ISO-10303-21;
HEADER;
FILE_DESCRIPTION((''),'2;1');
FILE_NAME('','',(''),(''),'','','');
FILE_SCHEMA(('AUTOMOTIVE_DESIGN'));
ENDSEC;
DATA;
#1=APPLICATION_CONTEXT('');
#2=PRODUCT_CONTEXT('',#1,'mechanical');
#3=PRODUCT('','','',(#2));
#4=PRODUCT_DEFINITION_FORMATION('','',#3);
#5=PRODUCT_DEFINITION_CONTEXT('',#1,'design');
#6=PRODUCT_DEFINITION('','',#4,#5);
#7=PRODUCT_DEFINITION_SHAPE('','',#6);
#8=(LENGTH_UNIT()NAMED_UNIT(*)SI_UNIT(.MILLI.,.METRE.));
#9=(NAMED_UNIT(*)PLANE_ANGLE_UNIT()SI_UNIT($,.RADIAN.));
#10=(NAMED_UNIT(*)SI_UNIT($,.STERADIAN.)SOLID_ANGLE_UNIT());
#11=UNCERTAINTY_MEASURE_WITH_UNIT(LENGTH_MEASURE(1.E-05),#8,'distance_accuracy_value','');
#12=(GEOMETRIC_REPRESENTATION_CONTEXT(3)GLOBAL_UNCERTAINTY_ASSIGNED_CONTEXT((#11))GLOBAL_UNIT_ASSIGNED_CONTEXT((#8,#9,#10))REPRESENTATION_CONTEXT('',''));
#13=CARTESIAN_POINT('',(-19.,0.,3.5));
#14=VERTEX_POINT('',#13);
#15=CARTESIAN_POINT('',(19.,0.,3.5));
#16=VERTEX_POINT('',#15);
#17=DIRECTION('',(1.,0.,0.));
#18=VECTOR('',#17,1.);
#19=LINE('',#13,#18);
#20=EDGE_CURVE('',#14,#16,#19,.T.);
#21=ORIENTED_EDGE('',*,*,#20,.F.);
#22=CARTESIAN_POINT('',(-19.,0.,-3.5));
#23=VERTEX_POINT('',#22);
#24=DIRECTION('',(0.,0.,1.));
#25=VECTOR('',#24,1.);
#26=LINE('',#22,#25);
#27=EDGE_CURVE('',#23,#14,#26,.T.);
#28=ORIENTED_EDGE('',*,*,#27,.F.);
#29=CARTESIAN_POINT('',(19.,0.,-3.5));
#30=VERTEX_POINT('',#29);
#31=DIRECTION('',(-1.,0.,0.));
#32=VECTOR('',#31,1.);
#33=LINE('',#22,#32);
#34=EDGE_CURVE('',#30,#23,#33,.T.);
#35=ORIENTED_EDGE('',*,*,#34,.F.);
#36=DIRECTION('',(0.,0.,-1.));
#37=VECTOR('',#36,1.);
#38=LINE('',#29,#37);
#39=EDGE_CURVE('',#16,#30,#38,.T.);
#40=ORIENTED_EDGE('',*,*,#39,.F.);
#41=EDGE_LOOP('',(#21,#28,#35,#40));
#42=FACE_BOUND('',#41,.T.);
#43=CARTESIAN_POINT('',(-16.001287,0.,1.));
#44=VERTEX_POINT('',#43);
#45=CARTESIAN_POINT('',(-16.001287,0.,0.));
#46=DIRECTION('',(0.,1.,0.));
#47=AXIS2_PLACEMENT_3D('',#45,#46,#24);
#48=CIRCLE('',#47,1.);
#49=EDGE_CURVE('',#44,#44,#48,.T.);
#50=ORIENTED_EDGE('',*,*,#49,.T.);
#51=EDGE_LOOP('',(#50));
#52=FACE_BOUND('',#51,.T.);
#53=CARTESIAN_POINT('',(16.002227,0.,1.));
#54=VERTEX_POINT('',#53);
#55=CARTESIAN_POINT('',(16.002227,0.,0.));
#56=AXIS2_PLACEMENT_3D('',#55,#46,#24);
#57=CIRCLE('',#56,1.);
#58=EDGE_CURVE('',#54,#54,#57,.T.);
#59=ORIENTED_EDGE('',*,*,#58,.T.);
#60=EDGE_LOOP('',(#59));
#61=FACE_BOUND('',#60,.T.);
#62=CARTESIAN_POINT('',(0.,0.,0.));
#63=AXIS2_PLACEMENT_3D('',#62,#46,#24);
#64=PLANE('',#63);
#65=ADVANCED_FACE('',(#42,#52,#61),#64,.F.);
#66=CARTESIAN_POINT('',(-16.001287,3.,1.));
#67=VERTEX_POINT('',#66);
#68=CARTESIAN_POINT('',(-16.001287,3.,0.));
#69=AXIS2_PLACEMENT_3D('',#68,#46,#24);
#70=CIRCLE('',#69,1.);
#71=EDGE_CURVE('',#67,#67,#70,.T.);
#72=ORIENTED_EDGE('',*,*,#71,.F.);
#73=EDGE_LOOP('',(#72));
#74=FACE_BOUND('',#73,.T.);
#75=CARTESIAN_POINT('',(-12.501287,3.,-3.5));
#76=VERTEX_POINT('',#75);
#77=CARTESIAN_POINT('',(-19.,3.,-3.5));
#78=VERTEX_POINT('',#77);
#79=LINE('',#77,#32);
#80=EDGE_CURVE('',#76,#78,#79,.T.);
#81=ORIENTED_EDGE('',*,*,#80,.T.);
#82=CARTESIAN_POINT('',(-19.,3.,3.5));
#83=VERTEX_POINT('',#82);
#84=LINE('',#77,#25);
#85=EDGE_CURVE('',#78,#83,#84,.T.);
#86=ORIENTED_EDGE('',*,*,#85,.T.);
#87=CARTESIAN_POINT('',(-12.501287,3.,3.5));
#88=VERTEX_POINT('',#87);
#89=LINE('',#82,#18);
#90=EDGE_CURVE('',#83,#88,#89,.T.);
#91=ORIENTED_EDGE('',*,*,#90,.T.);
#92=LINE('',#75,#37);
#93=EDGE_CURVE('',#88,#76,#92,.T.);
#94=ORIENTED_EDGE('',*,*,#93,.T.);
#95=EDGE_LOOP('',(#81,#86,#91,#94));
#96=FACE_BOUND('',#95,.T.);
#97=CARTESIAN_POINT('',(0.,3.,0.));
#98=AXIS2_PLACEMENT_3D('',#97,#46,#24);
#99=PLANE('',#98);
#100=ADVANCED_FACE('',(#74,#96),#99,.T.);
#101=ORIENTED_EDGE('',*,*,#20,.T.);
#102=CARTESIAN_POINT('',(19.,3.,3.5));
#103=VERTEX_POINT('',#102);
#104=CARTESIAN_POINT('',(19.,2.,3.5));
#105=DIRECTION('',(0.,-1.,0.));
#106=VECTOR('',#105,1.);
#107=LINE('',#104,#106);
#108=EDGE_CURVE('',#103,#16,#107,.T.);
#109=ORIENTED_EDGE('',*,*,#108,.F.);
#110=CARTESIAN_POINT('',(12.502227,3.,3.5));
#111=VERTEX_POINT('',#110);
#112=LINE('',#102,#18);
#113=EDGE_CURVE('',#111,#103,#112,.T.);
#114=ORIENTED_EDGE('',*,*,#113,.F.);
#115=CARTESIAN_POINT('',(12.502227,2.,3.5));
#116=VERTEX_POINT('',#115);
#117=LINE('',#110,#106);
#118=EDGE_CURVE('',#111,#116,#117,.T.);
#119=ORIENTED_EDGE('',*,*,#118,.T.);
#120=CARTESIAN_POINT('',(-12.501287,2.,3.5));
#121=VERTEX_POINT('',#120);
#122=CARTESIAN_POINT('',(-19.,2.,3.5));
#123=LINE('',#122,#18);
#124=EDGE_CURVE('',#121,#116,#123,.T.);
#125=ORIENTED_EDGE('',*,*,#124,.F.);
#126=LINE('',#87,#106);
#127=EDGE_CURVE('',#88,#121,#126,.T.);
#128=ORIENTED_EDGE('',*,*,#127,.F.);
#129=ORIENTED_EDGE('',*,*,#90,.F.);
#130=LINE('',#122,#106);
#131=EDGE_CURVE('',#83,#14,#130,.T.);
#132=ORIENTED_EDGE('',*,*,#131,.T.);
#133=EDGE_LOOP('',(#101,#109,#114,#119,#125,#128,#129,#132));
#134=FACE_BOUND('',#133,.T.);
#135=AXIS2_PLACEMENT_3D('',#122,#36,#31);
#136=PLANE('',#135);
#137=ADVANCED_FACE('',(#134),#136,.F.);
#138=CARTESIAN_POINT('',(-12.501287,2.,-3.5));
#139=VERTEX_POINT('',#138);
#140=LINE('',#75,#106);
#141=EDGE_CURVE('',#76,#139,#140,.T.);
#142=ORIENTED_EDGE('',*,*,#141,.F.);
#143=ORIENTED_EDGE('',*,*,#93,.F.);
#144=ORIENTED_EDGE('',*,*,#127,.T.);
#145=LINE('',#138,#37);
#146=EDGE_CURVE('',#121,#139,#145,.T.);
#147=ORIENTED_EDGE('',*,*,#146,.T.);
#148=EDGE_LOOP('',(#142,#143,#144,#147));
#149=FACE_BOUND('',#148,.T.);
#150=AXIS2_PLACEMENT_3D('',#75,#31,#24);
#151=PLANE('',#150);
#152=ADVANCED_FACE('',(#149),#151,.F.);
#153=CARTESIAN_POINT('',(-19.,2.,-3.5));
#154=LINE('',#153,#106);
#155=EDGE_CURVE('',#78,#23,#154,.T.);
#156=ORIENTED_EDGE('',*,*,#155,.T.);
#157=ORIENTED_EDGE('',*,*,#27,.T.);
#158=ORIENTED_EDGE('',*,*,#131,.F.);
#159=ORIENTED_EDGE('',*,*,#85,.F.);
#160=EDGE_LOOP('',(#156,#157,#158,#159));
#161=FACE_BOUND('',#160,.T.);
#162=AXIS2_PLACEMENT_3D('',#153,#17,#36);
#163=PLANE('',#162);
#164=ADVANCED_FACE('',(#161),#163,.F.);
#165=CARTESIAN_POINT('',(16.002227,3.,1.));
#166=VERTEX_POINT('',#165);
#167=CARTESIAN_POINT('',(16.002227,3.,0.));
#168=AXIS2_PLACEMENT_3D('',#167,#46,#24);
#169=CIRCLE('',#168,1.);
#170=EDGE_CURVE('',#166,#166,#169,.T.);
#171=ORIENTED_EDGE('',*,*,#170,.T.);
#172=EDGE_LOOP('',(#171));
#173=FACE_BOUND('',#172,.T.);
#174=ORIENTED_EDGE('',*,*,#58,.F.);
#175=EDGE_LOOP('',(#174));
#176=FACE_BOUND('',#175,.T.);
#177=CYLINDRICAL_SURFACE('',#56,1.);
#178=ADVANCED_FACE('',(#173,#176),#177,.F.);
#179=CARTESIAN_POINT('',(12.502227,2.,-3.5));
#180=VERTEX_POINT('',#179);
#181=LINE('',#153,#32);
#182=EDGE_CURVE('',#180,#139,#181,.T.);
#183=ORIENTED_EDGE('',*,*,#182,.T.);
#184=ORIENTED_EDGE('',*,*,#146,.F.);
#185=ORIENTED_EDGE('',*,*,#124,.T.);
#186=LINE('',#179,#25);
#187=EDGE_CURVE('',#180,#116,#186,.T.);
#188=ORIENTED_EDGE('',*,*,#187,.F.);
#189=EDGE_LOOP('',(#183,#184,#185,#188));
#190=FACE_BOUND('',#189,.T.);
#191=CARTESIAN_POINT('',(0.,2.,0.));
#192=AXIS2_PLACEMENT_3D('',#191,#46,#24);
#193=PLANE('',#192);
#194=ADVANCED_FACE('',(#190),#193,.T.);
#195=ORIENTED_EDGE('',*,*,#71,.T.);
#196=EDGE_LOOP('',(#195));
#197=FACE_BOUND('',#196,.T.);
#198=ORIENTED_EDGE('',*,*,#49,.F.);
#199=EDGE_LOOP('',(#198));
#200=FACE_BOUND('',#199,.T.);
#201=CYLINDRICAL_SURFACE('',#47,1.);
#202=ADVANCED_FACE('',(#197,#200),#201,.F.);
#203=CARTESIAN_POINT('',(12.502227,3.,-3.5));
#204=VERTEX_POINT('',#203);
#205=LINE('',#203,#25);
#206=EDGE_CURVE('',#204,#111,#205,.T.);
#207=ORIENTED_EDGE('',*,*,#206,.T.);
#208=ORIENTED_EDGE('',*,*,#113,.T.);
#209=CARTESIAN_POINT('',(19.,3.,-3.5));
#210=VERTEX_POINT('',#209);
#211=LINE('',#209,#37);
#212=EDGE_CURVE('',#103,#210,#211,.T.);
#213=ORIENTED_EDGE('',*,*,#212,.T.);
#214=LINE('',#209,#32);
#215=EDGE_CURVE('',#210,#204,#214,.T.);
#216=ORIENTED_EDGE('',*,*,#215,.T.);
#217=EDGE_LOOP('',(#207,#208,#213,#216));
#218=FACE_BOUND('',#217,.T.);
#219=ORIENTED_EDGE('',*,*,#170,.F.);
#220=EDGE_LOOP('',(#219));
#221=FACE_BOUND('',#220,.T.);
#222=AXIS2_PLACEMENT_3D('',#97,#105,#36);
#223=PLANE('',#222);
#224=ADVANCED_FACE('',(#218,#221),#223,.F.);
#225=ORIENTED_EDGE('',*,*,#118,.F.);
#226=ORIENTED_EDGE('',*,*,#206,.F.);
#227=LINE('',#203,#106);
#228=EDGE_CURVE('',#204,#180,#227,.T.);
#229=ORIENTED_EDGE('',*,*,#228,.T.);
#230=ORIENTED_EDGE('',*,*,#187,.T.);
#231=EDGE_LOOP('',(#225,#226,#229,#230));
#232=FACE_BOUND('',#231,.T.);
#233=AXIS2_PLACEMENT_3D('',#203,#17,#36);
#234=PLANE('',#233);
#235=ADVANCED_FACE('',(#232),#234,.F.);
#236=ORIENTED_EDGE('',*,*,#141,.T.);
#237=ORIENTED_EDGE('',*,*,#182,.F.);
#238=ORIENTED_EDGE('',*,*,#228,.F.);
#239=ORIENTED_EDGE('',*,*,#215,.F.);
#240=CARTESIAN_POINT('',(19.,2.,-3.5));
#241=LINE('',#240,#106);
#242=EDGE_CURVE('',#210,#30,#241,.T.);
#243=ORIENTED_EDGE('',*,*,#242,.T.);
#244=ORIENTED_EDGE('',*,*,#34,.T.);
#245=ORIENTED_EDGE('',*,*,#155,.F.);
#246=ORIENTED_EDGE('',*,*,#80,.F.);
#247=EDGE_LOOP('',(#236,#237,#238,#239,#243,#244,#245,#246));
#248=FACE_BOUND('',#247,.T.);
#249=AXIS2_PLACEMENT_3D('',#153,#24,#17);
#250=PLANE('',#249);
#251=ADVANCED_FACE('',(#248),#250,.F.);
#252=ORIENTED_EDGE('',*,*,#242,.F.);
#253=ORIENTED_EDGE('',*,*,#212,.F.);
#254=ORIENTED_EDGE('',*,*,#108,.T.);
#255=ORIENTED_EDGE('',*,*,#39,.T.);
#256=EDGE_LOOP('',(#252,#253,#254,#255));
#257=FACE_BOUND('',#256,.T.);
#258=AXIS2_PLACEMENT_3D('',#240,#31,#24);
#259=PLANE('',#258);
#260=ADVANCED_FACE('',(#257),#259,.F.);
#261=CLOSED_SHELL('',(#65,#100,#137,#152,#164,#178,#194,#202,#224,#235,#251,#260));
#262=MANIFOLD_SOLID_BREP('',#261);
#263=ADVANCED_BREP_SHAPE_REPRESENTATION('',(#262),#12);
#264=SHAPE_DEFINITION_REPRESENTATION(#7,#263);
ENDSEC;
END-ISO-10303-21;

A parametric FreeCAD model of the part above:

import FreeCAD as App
import Part
import Sketcher
Q = App.Units.Quantity


def add_polygon(sketch, points):
    """Adds a closed chain of lines whose ends are joined by coincident constraints."""
    first, n = sketch.GeometryCount, len(points)
    for a, b in zip(points, points[1:] + points[:1]):
        sketch.addGeometry(Part.LineSegment(App.Vector(*a, 0), App.Vector(*b, 0)), False)
    for i in range(n):
        sketch.addConstraint(Sketcher.Constraint("Coincident", first + i, 2, first + (i + 1) % n, 1))

doc = App.newDocument("Part")
params = doc.addObject("Spreadsheet::Sheet", "Params")
for row, (alias, value) in enumerate([
    ("sketch1_width", "38 mm"),
    ("sketch1_height", "7 mm"),
    ("pad1_length", "2 mm"),
    ("sketch2_height", "7 mm"),
    ("pad2_length", "1 mm"),
    ("sketch3_diameter", "2 mm"),
    ("pocket1_length", "3 mm"),
], start=1):
    params.set(f"A{row}", alias)
    params.set(f"B{row}", "=" + value)
    params.setAlias(f"B{row}", alias)

body = doc.addObject("PartDesign::Body", "Body")

# Sketch on XZ plane
sketch1 = body.newObject("Sketcher::SketchObject", "Sketch")
sketch1.AttachmentSupport = (doc.getObject("XZ_Plane"), [""])
sketch1.MapMode = "FlatFace"
add_polygon(sketch1, [(-19, -3.5), (-19, 3.5), (19, 3.5), (19, -3.5)])  # lines 0-3
sketch1.addConstraint([
    Sketcher.Constraint("Vertical", 0),
    Sketcher.Constraint("Horizontal", 1),
    Sketcher.Constraint("Vertical", 2),
    Sketcher.Constraint("Horizontal", 3),
    Sketcher.Constraint("Symmetric", 0, 2, 2, 2, -1, 1),
    Sketcher.Constraint("DistanceX", 1, 1, 1, 2, Q("38 mm")),
    Sketcher.Constraint("DistanceY", 0, 1, 0, 2, Q("7 mm")),
])
sketch1.setExpression("Constraints[9]", "Params.sketch1_width")
sketch1.setExpression("Constraints[10]", "Params.sketch1_height")
pad1 = body.newObject("PartDesign::Pad", "Pad")
pad1.Profile = sketch1
pad1.setExpression("Length", "Params.pad1_length")
pad1.Reversed = True

# Sketch on XZ plane
sketch2 = body.newObject("Sketcher::SketchObject", "Sketch001")
sketch2.AttachmentSupport = (doc.getObject("XZ_Plane"), [""])
sketch2.MapMode = "FlatFace"
sketch2.AttachmentOffset = App.Placement(App.Vector(0, 0, -2), App.Rotation())
add_polygon(sketch2, [(-19, -3.5), (-19, 3.5), (-12.501287, 3.5), (-12.501287, -3.5)])  # lines 0-3
add_polygon(sketch2, [(12.502227, -3.5), (12.502227, 3.5), (19, 3.5), (19, -3.5)])  # lines 4-7
sketch2.addConstraint([
    Sketcher.Constraint("Vertical", 0),
    Sketcher.Constraint("Horizontal", 1),
    Sketcher.Constraint("Vertical", 2),
    Sketcher.Constraint("Horizontal", 3),
    Sketcher.Constraint("Vertical", 4),
    Sketcher.Constraint("Horizontal", 5),
    Sketcher.Constraint("Vertical", 6),
    Sketcher.Constraint("Horizontal", 7),
    Sketcher.Constraint("Symmetric", 3, 2, 5, 2, -1, 1),
    Sketcher.Constraint("Horizontal", 1, 2, 4, 2),
    Sketcher.Constraint("Horizontal", 3, 2, 6, 2),
    Sketcher.Constraint("DistanceY", 0, 1, 0, 2, Q("7 mm")),
    Sketcher.Constraint("DistanceX", 0, 2, -1, 1, Q("19 mm")),
    Sketcher.Constraint("DistanceX", 1, 1, 1, 2, Q("6.498713 mm")),
    Sketcher.Constraint("DistanceX", 5, 1, 5, 2, Q("6.497773 mm")),
])
sketch2.setExpression("Constraints[19]", "Params.sketch2_height")
pad2 = body.newObject("PartDesign::Pad", "Pad001")
pad2.Profile = sketch2
pad2.setExpression("Length", "Params.pad2_length")
pad2.Reversed = True

# Sketch on XZ plane
sketch3 = body.newObject("Sketcher::SketchObject", "Sketch002")
sketch3.AttachmentSupport = (doc.getObject("XZ_Plane"), [""])
sketch3.MapMode = "FlatFace"
sketch3.AttachmentOffset = App.Placement(App.Vector(0, 0, -3), App.Rotation())
sketch3.addGeometry([
    Part.Circle(App.Vector(-16.001287, 0, 0), App.Vector(0, 0, 1), 1),
    Part.Circle(App.Vector(16.002227, 0, 0), App.Vector(0, 0, 1), 1),
], False)
sketch3.addConstraint([
    Sketcher.Constraint("Equal", 0, 1),
    Sketcher.Constraint("PointOnObject", 0, 3, -1),
    Sketcher.Constraint("PointOnObject", 1, 3, -1),
    Sketcher.Constraint("Diameter", 0, Q("2 mm")),
    Sketcher.Constraint("DistanceX", 0, 3, -1, 1, Q("16.001287 mm")),
    Sketcher.Constraint("DistanceX", -1, 1, 1, 3, Q("16.002227 mm")),
])
sketch3.setExpression("Constraints[3]", "Params.sketch3_diameter")
pocket1 = body.newObject("PartDesign::Pocket", "Pocket")
pocket1.Profile = sketch3
pocket1.setExpression("Length", "Params.pocket1_length")
pocket1.Reversed = True

doc.recompute()
